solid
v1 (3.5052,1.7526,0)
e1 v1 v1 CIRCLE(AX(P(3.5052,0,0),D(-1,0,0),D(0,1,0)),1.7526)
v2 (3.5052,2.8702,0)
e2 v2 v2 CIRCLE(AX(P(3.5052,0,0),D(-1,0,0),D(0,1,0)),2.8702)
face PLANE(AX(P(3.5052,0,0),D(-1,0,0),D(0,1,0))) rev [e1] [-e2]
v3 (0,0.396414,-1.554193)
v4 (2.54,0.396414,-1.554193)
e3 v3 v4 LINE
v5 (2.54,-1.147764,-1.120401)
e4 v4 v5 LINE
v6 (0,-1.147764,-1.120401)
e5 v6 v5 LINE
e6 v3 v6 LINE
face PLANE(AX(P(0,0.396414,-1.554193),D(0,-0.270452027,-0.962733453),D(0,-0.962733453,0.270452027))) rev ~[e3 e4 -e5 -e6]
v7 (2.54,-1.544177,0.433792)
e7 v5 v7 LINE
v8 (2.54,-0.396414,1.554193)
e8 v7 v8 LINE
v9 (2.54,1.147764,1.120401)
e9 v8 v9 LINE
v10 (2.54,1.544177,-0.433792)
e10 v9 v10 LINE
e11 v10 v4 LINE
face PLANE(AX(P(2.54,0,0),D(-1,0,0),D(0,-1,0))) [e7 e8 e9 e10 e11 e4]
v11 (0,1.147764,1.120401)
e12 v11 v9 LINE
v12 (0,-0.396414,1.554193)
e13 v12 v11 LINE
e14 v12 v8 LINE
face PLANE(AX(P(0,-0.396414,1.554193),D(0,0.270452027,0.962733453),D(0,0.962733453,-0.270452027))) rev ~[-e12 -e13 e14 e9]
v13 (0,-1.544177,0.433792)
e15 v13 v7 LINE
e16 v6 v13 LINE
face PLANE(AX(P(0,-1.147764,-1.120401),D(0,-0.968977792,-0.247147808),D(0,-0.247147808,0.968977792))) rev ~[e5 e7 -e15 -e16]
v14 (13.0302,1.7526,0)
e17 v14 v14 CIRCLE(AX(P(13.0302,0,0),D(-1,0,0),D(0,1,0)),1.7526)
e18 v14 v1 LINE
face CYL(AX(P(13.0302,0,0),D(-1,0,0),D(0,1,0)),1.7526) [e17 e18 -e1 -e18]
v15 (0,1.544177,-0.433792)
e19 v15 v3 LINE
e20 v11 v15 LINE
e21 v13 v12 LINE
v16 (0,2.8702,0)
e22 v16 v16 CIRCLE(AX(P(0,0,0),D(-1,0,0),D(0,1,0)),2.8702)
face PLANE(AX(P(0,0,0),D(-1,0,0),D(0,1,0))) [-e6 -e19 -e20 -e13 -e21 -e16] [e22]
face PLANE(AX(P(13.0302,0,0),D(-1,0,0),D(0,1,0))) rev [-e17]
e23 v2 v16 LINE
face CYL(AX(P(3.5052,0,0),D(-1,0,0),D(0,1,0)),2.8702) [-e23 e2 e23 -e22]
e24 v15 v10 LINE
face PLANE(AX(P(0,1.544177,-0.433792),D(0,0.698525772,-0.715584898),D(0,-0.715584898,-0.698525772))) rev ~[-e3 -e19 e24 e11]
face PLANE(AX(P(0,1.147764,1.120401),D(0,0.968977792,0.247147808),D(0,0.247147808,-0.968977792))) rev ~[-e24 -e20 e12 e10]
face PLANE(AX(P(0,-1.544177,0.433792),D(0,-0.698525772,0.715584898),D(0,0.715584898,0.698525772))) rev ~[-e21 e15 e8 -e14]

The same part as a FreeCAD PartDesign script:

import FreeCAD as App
import Part
import Sketcher
from FreeCAD import Vector
Q = App.Units.Quantity

doc = App.newDocument("Part")
body = doc.addObject("PartDesign::Body", "Body")

# Sketch on XY plane
sketch1 = doc.addObject("Sketcher::SketchObject", "Sketch")
body.addObject(sketch1)
sketch1.AttachmentSupport = (doc.XY_Plane, [""])
sketch1.MapMode = "FlatFace"
sketch1.addGeometry(Part.LineSegment(Vector(0, 2.8702, 0), Vector(0, 0, 0)), False)
sketch1.addGeometry(Part.LineSegment(Vector(0, 0, 0), Vector(13.0302, 0, 0)), False)
sketch1.addGeometry(Part.LineSegment(Vector(13.0302, 0, 0), Vector(13.0302, 1.7526, 0)), False)
sketch1.addGeometry(Part.LineSegment(Vector(13.0302, 1.7526, 0), Vector(3.5052, 1.7526, 0)), False)
sketch1.addGeometry(Part.LineSegment(Vector(3.5052, 1.7526, 0), Vector(3.5052, 2.8702, 0)), False)
sketch1.addGeometry(Part.LineSegment(Vector(3.5052, 2.8702, 0), Vector(0, 2.8702, 0)), False)
sketch1.addConstraint(Sketcher.Constraint("Coincident", 0, 2, 1, 1))
sketch1.addConstraint(Sketcher.Constraint("Coincident", 1, 2, 2, 1))
sketch1.addConstraint(Sketcher.Constraint("Coincident", 2, 2, 3, 1))
sketch1.addConstraint(Sketcher.Constraint("Coincident", 3, 2, 4, 1))
sketch1.addConstraint(Sketcher.Constraint("Coincident", 4, 2, 5, 1))
sketch1.addConstraint(Sketcher.Constraint("Coincident", 5, 2, 0, 1))
sketch1.addConstraint(Sketcher.Constraint("Vertical", 0))
sketch1.addConstraint(Sketcher.Constraint("Horizontal", 1))
sketch1.addConstraint(Sketcher.Constraint("Vertical", 2))
sketch1.addConstraint(Sketcher.Constraint("Horizontal", 3))
sketch1.addConstraint(Sketcher.Constraint("Vertical", 4))
sketch1.addConstraint(Sketcher.Constraint("Horizontal", 5))
sketch1.addConstraint(Sketcher.Constraint("Coincident", 0, 2, -1, 1))
sketch1.addConstraint(Sketcher.Constraint("DistanceX", 1, 1, 1, 2, Q("0.513 in")))
sketch1.addConstraint(Sketcher.Constraint("DistanceX", 3, 2, 3, 1, Q("0.375 in")))
sketch1.addConstraint(Sketcher.Constraint("DistanceY", 0, 2, 0, 1, Q("0.113 in")))
sketch1.addConstraint(Sketcher.Constraint("DistanceY", 2, 1, 2, 2, Q("0.069 in")))
revolution = doc.addObject("PartDesign::Revolution", "Revolution")
body.addObject(revolution)
revolution.Profile = sketch1
revolution.ReferenceAxis = (sketch1, ["H_Axis"])
revolution.Angle = 360

# Sketch on YZ plane
sketch2 = doc.addObject("Sketcher::SketchObject", "Sketch001")
body.addObject(sketch2)
sketch2.AttachmentSupport = (doc.YZ_Plane, [""])
sketch2.MapMode = "FlatFace"
sketch2.addGeometry(Part.LineSegment(Vector(-1.544177, 0.433792, 0), Vector(-0.396414, 1.554193, 0)), False)
sketch2.addGeometry(Part.LineSegment(Vector(-0.396414, 1.554193, 0), Vector(1.147764, 1.120401, 0)), False)
sketch2.addGeometry(Part.LineSegment(Vector(1.147764, 1.120401, 0), Vector(1.544177, -0.433792, 0)), False)
sketch2.addGeometry(Part.LineSegment(Vector(1.544177, -0.433792, 0), Vector(0.396414, -1.554193, 0)), False)
sketch2.addGeometry(Part.LineSegment(Vector(0.396414, -1.554193, 0), Vector(-1.147764, -1.120401, 0)), False)
sketch2.addGeometry(Part.LineSegment(Vector(-1.147764, -1.120401, 0), Vector(-1.544177, 0.433792, 0)), False)
sketch2.addConstraint(Sketcher.Constraint("Coincident", 0, 2, 1, 1))
sketch2.addConstraint(Sketcher.Constraint("Coincident", 1, 2, 2, 1))
sketch2.addConstraint(Sketcher.Constraint("Coincident", 2, 2, 3, 1))
sketch2.addConstraint(Sketcher.Constraint("Coincident", 3, 2, 4, 1))
sketch2.addConstraint(Sketcher.Constraint("Coincident", 4, 2, 5, 1))
sketch2.addConstraint(Sketcher.Constraint("Coincident", 5, 2, 0, 1))
sketch2.addConstraint(Sketcher.Constraint("Symmetric", 0, 2, 3, 2, -1, 1))
sketch2.addConstraint(Sketcher.Constraint("Symmetric", 1, 2, 4, 2, -1, 1))
sketch2.addConstraint(Sketcher.Constraint("Symmetric", 2, 2, 5, 2, -1, 1))
sketch2.addConstraint(Sketcher.Constraint("Equal", 0, 1))
sketch2.addConstraint(Sketcher.Constraint("Equal", 1, 2))
sketch2.addConstraint(Sketcher.Constraint("DistanceY", -1, 1, 1, 2, 1.120401))
sketch2.addConstraint(Sketcher.Constraint("DistanceY", 3, 2, 2, 2, 1.120401))
sketch2.addConstraint(Sketcher.Constraint("Distance", 0, 1.603951))
sketch2.addConstraint(Sketcher.Constraint("DistanceY", 1, 2, 0, 2, 0.433792))
pocket1 = doc.addObject("PartDesign::Pocket", "Pocket")
body.addObject(pocket1)
pocket1.Profile = sketch2
pocket1.Length = Q("0.1 in")
pocket1.Reversed = True

doc.recompute()
